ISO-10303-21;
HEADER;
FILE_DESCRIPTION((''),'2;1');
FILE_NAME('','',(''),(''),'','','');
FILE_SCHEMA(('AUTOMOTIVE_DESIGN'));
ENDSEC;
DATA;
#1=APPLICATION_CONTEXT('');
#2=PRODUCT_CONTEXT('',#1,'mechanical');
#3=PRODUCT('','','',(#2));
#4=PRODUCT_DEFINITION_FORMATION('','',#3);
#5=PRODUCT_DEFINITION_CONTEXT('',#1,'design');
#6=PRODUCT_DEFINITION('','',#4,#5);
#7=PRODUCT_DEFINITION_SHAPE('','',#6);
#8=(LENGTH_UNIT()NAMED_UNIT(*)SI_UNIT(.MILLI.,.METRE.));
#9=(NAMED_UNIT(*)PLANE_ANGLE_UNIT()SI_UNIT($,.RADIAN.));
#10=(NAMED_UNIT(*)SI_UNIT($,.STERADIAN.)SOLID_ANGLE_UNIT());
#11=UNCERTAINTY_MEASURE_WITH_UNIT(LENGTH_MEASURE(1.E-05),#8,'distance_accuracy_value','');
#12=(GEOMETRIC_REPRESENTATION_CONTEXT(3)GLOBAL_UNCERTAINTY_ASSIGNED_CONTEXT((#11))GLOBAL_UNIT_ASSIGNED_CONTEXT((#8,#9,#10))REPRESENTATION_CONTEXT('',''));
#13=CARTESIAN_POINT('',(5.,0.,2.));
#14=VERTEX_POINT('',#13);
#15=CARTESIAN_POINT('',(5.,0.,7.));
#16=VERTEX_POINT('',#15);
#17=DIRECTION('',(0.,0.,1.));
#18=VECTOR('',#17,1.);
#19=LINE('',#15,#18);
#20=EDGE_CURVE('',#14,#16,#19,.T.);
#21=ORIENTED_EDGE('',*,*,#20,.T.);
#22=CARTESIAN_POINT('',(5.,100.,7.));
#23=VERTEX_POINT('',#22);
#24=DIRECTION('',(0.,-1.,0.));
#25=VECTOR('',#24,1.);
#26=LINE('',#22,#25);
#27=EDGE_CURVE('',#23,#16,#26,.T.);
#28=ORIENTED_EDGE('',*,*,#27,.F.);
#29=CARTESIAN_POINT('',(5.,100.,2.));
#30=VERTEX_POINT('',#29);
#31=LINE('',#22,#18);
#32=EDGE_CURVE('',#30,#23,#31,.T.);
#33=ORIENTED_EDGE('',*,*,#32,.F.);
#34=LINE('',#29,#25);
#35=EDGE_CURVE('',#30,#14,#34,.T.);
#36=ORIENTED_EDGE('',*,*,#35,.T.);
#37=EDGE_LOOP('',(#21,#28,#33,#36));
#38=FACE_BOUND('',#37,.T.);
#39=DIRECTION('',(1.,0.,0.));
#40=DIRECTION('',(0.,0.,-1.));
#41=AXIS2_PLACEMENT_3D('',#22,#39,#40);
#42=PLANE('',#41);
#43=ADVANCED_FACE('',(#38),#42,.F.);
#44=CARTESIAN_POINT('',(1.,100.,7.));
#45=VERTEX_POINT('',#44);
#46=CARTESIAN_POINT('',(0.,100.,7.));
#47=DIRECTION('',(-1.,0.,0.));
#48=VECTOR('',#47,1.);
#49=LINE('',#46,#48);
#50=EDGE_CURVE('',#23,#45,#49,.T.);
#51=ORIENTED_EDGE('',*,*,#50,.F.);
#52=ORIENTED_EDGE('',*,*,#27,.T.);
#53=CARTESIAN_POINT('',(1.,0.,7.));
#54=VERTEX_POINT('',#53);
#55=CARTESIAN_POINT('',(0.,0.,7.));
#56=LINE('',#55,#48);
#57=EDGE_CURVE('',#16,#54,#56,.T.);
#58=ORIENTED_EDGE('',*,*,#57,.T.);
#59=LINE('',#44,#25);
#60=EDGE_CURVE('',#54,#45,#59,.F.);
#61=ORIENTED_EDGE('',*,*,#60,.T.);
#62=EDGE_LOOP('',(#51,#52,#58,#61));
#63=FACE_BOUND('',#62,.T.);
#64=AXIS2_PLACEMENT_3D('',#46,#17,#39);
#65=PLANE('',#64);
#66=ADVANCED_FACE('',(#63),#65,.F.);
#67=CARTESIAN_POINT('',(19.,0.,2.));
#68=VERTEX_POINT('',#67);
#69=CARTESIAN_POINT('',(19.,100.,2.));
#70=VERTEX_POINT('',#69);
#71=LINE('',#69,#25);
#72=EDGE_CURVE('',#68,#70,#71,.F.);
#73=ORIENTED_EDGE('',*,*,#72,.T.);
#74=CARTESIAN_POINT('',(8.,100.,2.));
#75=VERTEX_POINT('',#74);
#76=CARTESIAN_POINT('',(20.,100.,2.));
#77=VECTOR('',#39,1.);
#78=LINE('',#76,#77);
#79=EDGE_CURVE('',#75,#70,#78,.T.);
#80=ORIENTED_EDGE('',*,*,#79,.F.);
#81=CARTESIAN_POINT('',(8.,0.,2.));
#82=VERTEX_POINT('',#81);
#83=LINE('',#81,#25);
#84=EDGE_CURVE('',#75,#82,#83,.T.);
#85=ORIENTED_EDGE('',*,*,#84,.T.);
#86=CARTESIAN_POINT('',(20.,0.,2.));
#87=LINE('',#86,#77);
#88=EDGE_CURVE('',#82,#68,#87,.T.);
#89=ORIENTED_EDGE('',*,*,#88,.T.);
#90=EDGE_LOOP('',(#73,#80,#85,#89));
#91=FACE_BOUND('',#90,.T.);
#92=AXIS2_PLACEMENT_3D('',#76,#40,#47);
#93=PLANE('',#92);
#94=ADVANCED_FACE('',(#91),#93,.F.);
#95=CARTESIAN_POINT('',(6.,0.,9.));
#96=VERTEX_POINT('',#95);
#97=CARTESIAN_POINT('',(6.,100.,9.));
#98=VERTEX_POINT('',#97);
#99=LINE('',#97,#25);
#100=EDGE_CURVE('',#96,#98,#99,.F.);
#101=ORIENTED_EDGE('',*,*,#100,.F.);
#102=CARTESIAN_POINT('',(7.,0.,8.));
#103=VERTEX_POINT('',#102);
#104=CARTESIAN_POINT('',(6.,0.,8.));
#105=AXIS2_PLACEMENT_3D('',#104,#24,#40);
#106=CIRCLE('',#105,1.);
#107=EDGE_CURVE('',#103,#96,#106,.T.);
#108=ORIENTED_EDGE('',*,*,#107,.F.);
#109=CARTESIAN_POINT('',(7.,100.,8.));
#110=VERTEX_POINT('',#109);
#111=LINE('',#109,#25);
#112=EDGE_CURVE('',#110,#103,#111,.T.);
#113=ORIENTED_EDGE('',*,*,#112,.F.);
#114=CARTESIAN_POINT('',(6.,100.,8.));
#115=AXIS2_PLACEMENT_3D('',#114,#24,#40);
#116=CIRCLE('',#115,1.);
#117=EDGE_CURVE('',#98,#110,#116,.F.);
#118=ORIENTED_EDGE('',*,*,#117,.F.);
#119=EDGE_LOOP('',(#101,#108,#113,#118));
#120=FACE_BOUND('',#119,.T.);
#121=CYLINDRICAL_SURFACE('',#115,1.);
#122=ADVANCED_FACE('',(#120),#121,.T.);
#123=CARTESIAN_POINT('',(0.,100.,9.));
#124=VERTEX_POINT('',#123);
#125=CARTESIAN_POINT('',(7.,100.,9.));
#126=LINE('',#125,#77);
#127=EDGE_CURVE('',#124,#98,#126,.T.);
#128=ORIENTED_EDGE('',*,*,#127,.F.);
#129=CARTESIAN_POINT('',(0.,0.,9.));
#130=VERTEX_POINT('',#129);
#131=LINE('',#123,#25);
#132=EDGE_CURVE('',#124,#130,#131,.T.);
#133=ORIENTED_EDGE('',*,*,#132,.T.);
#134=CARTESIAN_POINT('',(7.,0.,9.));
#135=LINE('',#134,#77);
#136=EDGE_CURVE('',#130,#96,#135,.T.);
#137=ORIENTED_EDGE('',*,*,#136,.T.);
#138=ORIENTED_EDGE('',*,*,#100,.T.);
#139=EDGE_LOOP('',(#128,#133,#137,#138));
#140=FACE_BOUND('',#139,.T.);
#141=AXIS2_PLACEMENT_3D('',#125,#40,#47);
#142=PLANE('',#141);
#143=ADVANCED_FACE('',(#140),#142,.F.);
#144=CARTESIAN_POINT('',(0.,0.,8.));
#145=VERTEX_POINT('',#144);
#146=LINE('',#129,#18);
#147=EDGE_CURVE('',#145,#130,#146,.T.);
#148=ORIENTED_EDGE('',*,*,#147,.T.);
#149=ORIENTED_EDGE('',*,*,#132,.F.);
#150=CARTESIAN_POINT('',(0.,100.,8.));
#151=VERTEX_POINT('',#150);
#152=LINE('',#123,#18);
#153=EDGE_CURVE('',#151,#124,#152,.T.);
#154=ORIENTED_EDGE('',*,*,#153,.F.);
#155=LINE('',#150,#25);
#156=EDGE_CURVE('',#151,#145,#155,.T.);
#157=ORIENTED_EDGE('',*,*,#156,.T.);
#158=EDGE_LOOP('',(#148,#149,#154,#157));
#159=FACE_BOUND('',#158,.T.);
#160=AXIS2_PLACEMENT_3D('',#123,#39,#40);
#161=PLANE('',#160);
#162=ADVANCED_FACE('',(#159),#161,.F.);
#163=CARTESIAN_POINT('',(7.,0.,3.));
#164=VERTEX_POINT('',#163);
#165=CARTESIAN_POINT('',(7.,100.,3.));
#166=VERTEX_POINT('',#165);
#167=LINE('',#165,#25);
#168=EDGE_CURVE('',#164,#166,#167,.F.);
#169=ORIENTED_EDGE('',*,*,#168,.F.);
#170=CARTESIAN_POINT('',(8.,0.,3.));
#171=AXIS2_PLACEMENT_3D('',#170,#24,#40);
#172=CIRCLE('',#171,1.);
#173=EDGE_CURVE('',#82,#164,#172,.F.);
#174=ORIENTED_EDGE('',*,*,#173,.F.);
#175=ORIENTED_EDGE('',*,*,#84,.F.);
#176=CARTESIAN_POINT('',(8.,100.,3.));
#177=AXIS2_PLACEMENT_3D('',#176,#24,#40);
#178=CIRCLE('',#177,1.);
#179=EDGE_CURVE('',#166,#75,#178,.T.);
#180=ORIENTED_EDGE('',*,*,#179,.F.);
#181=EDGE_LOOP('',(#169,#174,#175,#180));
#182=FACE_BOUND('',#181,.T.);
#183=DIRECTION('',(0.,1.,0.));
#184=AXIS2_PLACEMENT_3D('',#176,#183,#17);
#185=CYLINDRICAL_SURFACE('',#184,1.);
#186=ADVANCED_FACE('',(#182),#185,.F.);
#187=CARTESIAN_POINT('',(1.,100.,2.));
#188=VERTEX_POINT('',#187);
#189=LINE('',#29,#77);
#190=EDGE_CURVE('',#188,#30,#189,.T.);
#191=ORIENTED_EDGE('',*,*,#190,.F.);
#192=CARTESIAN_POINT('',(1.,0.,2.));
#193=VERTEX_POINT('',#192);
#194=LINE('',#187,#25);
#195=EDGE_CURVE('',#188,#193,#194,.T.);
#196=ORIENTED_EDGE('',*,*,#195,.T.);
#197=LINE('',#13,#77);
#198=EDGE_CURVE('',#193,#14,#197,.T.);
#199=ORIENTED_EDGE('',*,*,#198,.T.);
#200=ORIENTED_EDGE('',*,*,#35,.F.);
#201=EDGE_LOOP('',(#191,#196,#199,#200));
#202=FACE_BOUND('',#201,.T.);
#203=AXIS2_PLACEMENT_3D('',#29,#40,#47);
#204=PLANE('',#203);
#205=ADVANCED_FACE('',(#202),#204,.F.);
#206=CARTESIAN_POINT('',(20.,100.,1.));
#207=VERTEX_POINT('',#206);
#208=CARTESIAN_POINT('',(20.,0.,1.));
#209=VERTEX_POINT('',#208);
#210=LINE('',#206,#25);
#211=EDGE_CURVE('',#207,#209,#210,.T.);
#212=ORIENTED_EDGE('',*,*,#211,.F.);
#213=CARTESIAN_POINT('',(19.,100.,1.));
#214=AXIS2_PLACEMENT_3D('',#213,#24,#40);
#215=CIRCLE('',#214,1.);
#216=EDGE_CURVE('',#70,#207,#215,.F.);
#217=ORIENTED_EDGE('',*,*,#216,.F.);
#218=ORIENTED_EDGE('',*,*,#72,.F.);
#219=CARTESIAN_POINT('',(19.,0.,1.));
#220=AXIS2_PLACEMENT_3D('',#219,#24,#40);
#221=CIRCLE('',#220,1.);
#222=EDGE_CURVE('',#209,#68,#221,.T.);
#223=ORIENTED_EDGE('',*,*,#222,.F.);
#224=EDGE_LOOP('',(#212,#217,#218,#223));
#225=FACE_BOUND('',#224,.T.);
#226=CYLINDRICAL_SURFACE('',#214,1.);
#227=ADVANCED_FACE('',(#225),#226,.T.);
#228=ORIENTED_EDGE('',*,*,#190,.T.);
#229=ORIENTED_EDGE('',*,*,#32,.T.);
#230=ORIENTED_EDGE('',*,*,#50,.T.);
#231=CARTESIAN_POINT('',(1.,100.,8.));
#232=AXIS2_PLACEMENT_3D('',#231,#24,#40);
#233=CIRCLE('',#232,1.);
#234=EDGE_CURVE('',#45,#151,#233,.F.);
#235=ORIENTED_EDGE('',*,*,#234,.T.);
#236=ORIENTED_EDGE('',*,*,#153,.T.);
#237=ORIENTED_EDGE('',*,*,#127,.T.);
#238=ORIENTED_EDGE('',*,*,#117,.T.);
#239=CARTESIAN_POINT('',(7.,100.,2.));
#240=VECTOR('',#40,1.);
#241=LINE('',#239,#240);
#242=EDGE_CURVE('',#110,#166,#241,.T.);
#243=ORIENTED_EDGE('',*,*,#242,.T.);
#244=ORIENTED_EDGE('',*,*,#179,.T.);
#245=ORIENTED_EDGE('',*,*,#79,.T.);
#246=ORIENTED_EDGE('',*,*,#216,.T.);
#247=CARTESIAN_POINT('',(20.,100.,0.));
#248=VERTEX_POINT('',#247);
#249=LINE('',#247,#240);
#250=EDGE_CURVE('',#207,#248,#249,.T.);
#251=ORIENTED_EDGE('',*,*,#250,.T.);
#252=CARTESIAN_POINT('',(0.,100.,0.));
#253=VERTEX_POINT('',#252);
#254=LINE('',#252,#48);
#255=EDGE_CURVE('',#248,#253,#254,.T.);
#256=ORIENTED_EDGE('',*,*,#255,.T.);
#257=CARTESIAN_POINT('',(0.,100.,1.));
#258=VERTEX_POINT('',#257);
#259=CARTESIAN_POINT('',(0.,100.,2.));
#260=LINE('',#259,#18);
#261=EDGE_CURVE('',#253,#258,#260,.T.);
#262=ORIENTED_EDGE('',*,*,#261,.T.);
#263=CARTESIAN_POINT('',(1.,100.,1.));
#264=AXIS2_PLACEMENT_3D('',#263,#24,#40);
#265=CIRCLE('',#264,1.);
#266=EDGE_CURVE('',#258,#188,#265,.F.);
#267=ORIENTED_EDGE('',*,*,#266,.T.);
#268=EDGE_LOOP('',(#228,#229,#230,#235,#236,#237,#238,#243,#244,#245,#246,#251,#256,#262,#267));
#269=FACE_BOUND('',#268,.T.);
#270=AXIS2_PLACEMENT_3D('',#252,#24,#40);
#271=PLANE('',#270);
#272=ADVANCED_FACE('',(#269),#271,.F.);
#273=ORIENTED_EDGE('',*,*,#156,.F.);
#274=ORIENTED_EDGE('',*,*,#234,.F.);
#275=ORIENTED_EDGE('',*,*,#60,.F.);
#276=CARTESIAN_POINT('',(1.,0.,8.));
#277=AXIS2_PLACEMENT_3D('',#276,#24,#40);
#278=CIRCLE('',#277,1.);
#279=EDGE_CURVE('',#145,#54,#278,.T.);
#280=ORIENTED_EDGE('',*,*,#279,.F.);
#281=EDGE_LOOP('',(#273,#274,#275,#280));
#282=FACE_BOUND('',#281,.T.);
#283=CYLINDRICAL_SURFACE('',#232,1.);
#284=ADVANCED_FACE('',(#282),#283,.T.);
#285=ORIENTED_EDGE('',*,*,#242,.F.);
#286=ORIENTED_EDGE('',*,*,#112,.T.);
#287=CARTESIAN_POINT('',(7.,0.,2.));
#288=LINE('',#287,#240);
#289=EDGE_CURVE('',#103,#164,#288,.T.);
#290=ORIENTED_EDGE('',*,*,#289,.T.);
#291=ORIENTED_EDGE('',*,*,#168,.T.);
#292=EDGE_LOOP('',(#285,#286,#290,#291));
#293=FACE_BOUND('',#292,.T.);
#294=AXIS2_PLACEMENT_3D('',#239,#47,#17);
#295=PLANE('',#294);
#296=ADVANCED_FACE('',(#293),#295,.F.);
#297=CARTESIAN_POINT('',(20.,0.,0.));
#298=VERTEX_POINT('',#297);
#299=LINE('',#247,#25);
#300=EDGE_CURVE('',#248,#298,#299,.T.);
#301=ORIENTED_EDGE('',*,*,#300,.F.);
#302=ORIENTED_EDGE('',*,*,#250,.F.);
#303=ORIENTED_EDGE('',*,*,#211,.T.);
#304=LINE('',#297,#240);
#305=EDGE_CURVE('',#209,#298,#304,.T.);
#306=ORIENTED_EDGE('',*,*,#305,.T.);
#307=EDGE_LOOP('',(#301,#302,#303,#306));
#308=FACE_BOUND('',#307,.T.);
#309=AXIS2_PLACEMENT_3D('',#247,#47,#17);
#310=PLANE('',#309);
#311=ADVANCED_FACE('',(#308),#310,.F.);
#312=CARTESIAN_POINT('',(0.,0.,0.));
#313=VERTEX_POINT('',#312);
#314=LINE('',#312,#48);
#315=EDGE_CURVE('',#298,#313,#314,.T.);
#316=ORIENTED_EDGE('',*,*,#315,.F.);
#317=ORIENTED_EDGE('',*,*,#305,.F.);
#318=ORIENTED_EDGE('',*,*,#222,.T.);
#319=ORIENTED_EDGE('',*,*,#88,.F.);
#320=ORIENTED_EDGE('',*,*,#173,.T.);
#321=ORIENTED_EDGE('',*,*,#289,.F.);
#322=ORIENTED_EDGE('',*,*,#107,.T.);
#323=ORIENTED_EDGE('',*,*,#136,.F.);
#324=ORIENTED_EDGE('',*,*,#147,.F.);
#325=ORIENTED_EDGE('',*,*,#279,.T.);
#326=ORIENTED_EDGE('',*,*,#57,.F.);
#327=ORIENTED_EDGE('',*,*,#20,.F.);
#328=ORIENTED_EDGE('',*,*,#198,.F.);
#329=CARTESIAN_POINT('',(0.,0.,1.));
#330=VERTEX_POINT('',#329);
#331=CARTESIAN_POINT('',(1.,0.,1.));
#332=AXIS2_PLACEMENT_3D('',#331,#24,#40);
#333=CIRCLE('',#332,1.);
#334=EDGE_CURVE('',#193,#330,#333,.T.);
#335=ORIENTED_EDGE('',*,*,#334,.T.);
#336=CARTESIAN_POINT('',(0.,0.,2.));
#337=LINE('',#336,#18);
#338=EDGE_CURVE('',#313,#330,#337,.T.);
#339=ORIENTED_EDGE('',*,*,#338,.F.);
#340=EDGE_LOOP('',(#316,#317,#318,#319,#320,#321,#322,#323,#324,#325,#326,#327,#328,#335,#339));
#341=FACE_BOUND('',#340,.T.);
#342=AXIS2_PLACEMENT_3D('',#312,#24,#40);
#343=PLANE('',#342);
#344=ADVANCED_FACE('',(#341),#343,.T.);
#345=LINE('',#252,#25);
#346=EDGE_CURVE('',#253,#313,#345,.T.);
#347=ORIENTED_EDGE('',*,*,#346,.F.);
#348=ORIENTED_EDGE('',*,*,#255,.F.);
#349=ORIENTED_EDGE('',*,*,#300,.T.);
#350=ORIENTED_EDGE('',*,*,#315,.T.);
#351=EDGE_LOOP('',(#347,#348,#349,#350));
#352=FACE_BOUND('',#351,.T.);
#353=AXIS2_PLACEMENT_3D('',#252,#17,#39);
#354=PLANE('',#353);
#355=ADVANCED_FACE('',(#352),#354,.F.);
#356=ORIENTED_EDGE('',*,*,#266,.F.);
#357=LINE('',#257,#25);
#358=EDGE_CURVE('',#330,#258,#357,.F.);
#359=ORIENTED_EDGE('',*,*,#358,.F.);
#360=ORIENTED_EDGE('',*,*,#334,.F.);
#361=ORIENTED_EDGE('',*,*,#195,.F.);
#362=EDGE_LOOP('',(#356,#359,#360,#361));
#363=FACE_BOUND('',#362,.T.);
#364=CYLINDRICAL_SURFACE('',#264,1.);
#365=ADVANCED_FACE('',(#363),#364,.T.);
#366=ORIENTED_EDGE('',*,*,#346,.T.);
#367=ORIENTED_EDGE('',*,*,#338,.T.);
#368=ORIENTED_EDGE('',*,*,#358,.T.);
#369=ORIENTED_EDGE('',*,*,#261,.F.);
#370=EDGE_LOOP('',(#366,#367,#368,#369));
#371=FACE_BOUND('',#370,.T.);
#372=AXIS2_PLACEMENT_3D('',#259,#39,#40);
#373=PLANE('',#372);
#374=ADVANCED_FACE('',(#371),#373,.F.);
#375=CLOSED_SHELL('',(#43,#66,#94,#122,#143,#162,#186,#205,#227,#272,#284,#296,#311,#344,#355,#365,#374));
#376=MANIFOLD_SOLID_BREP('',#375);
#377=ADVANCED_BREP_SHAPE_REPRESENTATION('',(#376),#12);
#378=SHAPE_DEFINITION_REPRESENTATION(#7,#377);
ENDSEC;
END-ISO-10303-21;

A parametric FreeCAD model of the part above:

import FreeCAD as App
import Part
import Sketcher
from FreeCAD import Vector


def edges_at(feature, points):
    """Names of the edges that pass closest to the given points."""
    edges = feature.Shape.Edges
    near = lambda p: min(range(len(edges)), key=lambda i: edges[i].distToShape(Part.Vertex(*p))[0])
    return sorted({f"Edge{near(p) + 1}" for p in points})

doc = App.newDocument("Part")
body = doc.addObject("PartDesign::Body", "Body")

# Sketch on XZ plane
sketch1 = body.newObject("Sketcher::SketchObject", "Sketch")
sketch1.AttachmentSupport = (doc.getObject("XZ_Plane"), [""])
sketch1.MapMode = "FlatFace"
sketch1.addGeometry(Part.LineSegment(Vector(20, 0, 0), Vector(0, 0, 0)), False)
sketch1.addGeometry(Part.LineSegment(Vector(0, 0, 0), Vector(0, 2, 0)), False)
sketch1.addGeometry(Part.LineSegment(Vector(0, 2, 0), Vector(5, 2, 0)), False)
sketch1.addGeometry(Part.LineSegment(Vector(5, 2, 0), Vector(5, 7, 0)), False)
sketch1.addGeometry(Part.LineSegment(Vector(5, 7, 0), Vector(0, 7, 0)), False)
sketch1.addGeometry(Part.LineSegment(Vector(0, 7, 0), Vector(0, 9, 0)), False)
sketch1.addGeometry(Part.LineSegment(Vector(0, 9, 0), Vector(7, 9, 0)), False)
sketch1.addGeometry(Part.LineSegment(Vector(7, 9, 0), Vector(7, 2, 0)), False)
sketch1.addGeometry(Part.LineSegment(Vector(7, 2, 0), Vector(20, 2, 0)), False)
sketch1.addGeometry(Part.LineSegment(Vector(20, 2, 0), Vector(20, 0, 0)), False)
sketch1.addConstraint(Sketcher.Constraint("Coincident", 0, 2, 1, 1))
sketch1.addConstraint(Sketcher.Constraint("Coincident", 1, 2, 2, 1))
sketch1.addConstraint(Sketcher.Constraint("Coincident", 2, 2, 3, 1))
sketch1.addConstraint(Sketcher.Constraint("Coincident", 3, 2, 4, 1))
sketch1.addConstraint(Sketcher.Constraint("Coincident", 4, 2, 5, 1))
sketch1.addConstraint(Sketcher.Constraint("Coincident", 5, 2, 6, 1))
sketch1.addConstraint(Sketcher.Constraint("Coincident", 6, 2, 7, 1))
sketch1.addConstraint(Sketcher.Constraint("Coincident", 7, 2, 8, 1))
sketch1.addConstraint(Sketcher.Constraint("Coincident", 8, 2, 9, 1))
sketch1.addConstraint(Sketcher.Constraint("Coincident", 9, 2, 0, 1))
sketch1.addConstraint(Sketcher.Constraint("Horizontal", 0))
sketch1.addConstraint(Sketcher.Constraint("Vertical", 1))
sketch1.addConstraint(Sketcher.Constraint("Horizontal", 2))
sketch1.addConstraint(Sketcher.Constraint("Vertical", 3))
sketch1.addConstraint(Sketcher.Constraint("Horizontal", 4))
sketch1.addConstraint(Sketcher.Constraint("Vertical", 5))
sketch1.addConstraint(Sketcher.Constraint("Horizontal", 6))
sketch1.addConstraint(Sketcher.Constraint("Vertical", 7))
sketch1.addConstraint(Sketcher.Constraint("Horizontal", 8))
sketch1.addConstraint(Sketcher.Constraint("Vertical", 9))
sketch1.addConstraint(Sketcher.Constraint("Coincident", 0, 2, -1, 1))
sketch1.addConstraint(Sketcher.Constraint("PointOnObject", 4, 2, -2))
sketch1.addConstraint(Sketcher.Constraint("Horizontal", 2, 2, 7, 2))
sketch1.addConstraint(Sketcher.Constraint("Equal", 4, 3))
sketch1.addConstraint(Sketcher.Constraint("Equal", 1, 5))
sketch1.addConstraint(Sketcher.Constraint("Equal", 6, 7))
sketch1.addConstraint(Sketcher.Constraint("DistanceX", 0, 2, 0, 1, 20.0))
sketch1.addConstraint(Sketcher.Constraint("DistanceX", 2, 1, 2, 2, 5.0))
sketch1.addConstraint(Sketcher.Constraint("DistanceX", 6, 1, 6, 2, 7.0))
pad1 = body.newObject("PartDesign::Pad", "Pad")
pad1.Profile = sketch1
pad1.Length = 100
pad1.Reversed = True
doc.recompute()

fillet = body.newObject("PartDesign::Fillet", "Fillet")
fillet.Base = (pad1, edges_at(pad1, [
    (20, 50, 2),
    (7, 50, 2),
    (7, 50, 9),
    (0, 50, 7),
    (0, 50, 2),
]))
fillet.Radius = 1

doc.recompute()
